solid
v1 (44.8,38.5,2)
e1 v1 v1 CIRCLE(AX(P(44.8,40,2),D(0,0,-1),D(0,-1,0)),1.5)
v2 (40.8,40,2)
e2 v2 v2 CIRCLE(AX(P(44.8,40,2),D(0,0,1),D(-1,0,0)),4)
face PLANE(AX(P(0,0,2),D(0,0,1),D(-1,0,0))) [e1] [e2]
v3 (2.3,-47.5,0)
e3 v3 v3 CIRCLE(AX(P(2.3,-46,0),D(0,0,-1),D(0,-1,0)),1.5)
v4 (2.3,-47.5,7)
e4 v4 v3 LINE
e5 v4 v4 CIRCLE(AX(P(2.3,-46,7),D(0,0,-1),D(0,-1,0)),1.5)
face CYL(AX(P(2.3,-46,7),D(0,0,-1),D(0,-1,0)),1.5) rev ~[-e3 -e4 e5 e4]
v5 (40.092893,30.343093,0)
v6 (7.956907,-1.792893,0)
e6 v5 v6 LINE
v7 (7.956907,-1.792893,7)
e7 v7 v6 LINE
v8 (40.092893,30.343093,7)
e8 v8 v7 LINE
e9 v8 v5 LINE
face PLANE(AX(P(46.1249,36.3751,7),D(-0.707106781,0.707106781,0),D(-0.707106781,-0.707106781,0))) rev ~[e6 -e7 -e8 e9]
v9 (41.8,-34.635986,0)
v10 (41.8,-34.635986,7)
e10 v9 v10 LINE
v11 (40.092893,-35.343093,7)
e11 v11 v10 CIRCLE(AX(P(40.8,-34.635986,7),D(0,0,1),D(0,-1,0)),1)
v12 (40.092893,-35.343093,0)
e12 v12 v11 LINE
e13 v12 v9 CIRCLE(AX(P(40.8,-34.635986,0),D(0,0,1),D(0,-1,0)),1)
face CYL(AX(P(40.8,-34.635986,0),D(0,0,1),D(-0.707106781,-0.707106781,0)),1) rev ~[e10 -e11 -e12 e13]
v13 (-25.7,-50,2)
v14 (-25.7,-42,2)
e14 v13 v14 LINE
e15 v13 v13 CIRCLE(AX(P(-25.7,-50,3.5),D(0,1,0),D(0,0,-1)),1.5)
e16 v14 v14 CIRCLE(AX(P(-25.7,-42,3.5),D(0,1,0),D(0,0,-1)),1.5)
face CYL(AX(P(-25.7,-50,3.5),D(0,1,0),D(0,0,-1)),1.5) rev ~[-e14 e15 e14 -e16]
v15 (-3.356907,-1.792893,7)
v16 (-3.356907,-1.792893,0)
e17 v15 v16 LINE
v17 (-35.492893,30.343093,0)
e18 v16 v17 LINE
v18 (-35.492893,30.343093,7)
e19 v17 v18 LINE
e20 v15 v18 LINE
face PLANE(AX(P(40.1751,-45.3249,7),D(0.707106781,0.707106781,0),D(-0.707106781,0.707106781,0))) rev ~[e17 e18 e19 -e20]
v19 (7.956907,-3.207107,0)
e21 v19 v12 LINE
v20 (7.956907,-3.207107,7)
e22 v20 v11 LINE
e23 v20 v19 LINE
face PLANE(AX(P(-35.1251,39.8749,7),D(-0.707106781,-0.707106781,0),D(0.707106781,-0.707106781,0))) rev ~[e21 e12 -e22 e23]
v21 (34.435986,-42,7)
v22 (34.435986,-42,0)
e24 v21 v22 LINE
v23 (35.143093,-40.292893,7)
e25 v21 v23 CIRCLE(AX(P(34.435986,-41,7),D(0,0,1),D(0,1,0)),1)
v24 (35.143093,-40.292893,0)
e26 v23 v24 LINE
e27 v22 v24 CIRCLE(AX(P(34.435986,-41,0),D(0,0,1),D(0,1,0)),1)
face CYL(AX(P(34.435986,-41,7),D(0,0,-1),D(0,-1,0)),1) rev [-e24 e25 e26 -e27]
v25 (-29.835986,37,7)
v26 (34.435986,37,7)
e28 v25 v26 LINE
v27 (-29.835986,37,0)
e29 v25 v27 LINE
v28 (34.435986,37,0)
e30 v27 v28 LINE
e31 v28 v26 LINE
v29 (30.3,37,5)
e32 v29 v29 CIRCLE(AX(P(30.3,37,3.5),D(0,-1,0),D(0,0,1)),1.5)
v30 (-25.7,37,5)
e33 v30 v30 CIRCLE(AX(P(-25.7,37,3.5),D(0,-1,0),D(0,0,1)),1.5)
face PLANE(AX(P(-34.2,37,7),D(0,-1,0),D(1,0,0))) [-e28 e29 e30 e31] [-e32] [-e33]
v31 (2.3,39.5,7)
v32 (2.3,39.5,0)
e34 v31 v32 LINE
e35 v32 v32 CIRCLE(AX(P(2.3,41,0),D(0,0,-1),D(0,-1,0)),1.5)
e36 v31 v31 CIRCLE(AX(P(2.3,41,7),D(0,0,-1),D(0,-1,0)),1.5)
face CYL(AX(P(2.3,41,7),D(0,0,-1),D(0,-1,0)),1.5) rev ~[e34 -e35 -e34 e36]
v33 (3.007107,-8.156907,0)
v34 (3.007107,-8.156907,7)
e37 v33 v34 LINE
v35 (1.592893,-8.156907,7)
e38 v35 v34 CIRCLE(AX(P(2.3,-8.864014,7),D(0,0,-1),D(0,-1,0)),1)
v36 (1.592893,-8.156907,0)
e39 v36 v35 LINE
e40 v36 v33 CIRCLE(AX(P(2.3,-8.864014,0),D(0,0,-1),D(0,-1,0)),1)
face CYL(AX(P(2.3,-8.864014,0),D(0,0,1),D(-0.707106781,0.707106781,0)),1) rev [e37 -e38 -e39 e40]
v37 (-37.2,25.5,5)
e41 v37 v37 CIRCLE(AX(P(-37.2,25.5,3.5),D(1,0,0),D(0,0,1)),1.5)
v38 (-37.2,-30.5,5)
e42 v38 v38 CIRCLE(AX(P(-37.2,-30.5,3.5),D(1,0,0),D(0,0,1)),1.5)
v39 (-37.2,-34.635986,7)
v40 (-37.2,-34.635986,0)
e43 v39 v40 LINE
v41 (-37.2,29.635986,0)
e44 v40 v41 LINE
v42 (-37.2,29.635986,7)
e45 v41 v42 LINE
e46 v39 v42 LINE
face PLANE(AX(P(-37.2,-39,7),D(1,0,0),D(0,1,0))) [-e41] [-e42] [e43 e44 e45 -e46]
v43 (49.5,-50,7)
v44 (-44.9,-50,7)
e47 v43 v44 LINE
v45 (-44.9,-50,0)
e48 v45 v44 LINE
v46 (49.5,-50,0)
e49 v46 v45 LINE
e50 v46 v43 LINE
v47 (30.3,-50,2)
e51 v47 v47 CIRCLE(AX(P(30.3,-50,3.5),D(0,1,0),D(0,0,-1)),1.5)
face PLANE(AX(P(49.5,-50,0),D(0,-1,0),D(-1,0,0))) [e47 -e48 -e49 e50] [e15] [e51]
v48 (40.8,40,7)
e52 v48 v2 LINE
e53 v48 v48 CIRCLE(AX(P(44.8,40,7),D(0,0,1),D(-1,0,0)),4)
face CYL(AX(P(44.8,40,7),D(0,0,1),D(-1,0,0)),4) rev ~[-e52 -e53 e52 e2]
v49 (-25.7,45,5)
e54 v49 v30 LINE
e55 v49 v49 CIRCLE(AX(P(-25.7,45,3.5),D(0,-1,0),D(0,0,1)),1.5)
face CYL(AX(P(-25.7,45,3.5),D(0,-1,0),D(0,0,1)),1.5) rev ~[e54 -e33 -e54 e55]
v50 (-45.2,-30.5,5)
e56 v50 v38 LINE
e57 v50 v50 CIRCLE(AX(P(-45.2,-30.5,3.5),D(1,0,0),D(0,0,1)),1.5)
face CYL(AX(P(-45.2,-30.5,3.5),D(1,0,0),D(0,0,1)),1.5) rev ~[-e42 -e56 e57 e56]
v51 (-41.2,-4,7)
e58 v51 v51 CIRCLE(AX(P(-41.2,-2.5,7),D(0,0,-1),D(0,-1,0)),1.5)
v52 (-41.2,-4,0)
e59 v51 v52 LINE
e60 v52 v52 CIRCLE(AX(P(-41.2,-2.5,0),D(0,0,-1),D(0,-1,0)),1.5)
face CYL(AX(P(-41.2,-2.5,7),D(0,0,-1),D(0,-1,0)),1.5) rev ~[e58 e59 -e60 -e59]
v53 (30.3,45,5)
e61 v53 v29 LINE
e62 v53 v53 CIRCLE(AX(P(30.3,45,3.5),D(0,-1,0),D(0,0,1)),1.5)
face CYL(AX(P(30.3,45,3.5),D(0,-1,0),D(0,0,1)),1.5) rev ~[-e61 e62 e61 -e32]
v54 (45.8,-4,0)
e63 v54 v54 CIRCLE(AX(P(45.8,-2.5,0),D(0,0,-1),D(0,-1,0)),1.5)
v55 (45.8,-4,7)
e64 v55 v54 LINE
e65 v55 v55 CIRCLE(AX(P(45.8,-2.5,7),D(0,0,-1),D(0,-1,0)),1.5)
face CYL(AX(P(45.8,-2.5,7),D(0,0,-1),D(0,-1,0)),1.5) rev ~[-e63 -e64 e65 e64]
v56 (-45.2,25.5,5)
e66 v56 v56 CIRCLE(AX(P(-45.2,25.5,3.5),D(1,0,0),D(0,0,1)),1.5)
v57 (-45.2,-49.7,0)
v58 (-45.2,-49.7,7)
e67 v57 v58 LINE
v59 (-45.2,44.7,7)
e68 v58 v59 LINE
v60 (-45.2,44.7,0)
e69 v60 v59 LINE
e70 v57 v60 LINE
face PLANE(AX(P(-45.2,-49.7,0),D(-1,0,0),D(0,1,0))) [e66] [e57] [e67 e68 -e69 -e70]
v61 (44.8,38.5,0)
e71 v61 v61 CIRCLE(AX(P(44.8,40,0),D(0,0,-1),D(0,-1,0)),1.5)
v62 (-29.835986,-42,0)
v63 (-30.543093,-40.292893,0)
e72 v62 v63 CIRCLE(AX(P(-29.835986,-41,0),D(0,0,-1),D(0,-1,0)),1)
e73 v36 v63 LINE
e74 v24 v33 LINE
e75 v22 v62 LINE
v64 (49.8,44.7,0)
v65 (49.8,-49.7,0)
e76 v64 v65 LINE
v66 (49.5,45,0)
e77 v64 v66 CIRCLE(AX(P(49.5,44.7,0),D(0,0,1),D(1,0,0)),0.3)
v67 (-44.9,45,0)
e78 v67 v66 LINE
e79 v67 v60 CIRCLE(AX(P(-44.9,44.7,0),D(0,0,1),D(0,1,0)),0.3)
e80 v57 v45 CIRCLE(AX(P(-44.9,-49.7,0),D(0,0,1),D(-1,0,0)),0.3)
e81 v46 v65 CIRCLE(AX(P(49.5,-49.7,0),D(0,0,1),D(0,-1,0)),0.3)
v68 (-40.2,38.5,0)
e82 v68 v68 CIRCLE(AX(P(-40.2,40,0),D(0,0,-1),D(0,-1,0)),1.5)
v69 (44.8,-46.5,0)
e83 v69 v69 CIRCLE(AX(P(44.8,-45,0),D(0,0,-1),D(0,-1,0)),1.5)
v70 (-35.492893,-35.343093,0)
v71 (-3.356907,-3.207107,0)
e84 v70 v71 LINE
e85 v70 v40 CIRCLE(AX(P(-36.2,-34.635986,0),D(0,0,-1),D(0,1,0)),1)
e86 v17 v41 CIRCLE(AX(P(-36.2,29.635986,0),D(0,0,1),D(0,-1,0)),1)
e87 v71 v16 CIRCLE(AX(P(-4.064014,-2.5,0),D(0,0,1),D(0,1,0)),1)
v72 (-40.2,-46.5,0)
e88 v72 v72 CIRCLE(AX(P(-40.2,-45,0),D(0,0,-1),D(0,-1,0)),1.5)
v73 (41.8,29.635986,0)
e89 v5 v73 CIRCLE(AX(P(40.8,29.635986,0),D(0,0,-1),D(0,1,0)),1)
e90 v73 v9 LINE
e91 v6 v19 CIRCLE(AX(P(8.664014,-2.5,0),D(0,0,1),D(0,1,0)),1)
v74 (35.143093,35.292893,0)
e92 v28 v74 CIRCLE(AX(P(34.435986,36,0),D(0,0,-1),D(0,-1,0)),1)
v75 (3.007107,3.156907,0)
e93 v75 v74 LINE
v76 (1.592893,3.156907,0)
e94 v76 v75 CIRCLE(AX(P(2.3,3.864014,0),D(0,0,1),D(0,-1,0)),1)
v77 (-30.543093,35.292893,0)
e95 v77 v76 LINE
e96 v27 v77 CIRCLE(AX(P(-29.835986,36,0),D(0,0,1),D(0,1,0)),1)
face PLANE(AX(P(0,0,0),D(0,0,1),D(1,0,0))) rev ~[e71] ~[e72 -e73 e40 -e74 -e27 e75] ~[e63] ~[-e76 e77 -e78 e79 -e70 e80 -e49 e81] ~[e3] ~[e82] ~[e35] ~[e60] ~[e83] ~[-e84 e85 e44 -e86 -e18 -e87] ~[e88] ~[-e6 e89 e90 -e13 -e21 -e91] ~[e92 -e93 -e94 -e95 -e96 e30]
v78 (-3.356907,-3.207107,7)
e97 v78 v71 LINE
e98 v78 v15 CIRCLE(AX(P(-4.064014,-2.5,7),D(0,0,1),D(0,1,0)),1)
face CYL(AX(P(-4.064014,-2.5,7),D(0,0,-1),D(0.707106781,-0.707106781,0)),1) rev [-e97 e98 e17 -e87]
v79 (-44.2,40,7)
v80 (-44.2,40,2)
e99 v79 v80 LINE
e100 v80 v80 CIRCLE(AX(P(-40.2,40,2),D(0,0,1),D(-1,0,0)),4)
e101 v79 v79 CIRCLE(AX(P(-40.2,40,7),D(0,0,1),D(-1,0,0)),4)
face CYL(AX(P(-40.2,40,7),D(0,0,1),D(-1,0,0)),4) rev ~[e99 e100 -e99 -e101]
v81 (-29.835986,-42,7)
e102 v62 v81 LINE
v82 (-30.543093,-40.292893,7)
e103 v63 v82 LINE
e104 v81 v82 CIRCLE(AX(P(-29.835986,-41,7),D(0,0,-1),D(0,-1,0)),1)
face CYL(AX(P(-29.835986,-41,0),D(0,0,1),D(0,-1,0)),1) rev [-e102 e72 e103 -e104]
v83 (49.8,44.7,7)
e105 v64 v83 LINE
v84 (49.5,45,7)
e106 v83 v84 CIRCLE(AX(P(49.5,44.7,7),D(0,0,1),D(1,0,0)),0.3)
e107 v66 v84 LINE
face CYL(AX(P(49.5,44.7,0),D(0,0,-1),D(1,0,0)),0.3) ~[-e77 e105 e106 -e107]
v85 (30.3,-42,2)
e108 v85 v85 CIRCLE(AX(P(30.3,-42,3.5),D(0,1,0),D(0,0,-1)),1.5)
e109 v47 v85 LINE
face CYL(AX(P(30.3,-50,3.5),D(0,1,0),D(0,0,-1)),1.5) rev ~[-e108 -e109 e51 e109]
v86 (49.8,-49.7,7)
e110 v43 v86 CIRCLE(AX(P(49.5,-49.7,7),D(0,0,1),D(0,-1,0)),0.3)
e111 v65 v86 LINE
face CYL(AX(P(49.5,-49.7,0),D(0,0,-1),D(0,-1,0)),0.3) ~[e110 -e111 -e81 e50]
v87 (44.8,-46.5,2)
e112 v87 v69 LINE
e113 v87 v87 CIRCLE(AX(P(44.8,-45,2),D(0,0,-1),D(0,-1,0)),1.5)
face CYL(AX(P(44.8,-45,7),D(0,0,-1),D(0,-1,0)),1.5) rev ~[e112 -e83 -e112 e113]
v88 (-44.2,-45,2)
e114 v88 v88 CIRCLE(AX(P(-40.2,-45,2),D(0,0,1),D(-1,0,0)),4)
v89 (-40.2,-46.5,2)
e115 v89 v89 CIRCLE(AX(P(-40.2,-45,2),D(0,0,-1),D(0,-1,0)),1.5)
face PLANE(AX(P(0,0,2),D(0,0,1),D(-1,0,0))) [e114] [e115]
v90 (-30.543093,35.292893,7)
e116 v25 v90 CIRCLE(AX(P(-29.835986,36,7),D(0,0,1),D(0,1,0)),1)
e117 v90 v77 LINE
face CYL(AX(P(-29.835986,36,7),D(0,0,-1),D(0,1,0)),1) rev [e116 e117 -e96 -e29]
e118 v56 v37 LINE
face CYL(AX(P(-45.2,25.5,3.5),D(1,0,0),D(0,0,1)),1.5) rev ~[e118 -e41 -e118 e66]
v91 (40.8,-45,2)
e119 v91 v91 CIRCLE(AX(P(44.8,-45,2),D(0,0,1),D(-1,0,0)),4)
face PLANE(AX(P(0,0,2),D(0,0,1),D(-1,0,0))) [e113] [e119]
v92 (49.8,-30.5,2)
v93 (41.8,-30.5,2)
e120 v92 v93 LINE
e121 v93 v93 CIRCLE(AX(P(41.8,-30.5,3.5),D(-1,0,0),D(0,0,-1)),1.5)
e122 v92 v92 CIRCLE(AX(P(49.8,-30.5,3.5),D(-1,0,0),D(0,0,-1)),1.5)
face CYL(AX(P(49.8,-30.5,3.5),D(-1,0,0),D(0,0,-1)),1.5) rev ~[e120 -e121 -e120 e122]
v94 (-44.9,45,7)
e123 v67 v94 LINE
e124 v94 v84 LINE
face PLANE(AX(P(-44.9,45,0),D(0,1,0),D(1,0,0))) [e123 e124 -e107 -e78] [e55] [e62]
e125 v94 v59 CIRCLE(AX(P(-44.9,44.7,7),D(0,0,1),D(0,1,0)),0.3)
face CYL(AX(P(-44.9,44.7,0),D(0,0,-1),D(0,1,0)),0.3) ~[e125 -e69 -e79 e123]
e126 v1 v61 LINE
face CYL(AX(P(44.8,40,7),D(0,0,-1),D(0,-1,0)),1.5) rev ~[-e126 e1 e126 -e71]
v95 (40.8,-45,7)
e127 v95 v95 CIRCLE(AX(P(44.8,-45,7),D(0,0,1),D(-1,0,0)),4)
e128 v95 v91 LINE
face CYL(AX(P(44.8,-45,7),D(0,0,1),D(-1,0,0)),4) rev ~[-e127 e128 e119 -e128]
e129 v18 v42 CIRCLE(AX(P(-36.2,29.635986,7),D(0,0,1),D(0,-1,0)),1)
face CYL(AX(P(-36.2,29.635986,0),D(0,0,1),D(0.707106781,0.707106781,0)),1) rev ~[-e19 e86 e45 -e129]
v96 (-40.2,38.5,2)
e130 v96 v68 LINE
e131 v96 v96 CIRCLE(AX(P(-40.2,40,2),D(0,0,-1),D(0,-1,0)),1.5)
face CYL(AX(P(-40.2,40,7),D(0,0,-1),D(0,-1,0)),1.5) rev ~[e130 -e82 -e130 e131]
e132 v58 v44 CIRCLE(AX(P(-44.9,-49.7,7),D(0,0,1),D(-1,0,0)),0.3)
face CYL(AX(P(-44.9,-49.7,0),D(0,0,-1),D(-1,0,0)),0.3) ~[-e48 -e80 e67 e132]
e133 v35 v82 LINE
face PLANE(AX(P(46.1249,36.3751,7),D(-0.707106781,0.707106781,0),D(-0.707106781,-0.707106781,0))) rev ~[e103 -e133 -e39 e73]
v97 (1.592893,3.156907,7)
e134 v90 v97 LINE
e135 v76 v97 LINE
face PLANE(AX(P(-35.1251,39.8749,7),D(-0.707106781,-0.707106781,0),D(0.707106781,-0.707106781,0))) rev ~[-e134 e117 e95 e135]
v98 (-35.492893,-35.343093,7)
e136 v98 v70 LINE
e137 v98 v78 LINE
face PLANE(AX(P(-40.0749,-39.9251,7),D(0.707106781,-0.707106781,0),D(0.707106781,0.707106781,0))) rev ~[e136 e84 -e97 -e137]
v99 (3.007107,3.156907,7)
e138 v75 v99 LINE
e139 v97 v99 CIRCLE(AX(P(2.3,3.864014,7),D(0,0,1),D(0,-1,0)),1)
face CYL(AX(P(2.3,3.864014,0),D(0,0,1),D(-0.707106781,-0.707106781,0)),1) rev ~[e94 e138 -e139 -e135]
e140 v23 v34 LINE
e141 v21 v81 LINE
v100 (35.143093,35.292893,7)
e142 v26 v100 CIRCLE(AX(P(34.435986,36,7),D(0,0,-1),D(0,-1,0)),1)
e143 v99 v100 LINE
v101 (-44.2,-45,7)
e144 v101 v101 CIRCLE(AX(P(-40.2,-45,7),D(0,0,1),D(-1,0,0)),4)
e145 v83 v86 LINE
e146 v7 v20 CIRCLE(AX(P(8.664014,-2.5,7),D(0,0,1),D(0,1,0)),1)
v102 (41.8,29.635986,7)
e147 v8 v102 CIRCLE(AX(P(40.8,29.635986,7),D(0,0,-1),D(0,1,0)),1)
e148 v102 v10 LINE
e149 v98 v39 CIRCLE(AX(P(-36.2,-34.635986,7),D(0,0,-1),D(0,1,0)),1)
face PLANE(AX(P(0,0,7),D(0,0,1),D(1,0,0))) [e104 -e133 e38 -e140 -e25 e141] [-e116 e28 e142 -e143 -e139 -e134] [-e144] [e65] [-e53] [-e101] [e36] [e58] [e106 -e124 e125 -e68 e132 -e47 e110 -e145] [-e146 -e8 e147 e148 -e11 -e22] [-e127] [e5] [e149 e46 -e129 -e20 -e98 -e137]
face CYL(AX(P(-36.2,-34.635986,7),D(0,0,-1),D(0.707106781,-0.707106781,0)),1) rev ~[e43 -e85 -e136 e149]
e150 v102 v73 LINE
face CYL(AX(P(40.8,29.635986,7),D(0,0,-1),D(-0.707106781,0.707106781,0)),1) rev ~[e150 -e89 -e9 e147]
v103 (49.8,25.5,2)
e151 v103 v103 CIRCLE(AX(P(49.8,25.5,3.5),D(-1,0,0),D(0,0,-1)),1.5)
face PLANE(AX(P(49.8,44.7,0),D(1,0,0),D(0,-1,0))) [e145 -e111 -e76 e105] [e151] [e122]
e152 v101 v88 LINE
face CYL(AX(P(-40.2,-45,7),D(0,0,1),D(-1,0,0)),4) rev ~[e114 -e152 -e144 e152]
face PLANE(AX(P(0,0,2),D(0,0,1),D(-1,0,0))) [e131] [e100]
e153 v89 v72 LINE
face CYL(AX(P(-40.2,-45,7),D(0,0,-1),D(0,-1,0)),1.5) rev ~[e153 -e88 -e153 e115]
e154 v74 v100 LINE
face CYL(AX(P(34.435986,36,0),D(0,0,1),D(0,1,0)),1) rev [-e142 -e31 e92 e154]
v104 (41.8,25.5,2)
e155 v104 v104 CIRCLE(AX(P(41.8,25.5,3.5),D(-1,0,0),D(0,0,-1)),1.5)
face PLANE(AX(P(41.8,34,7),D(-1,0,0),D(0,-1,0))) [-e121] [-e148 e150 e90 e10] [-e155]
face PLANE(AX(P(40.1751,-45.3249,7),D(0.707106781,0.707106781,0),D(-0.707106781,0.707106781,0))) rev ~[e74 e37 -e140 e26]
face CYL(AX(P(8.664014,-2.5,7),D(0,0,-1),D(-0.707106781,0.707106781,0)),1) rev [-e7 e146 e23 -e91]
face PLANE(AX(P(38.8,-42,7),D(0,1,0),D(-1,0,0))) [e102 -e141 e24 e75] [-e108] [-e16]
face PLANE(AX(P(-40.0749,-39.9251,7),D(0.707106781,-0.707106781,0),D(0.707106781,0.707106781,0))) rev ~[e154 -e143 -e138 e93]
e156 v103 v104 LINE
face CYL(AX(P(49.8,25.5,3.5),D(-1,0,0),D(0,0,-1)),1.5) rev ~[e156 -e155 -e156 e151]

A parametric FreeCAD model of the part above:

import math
import FreeCAD as App
import Part
import Sketcher

V = App.Vector
Q = App.Units.Quantity


def edges_at(feature, points):
    """Names of the edges that pass closest to the given points."""
    edges = feature.Shape.Edges
    near = lambda p: min(range(len(edges)), key=lambda i: edges[i].distToShape(Part.Vertex(*p))[0])
    return sorted({f"Edge{near(p) + 1}" for p in points})


def add_polygon(sketch, points):
    """Adds a closed chain of lines whose ends are joined by coincident constraints."""
    first, n = sketch.GeometryCount, len(points)
    for a, b in zip(points, points[1:] + points[:1]):
        sketch.addGeometry(Part.LineSegment(App.Vector(*a, 0), App.Vector(*b, 0)), False)
    for i in range(n):
        sketch.addConstraint(Sketcher.Constraint("Coincident", first + i, 2, first + (i + 1) % n, 1))

doc = App.newDocument("Part")
body = doc.addObject("PartDesign::Body", "Body")

sketch1 = body.newObject("Sketcher::SketchObject", "Sketch")
sketch1.AttachmentSupport = (doc.getObject("XY_Plane"), [""])
sketch1.MapMode = "FlatFace"
sketch1.addGeometry(Part.LineSegment(V(49.5, 45, 0), V(-44.9, 45, 0)), False)
sketch1.addGeometry(Part.ArcOfCircle(Part.Circle(V(-44.9, 44.7, 0), V(0, 0, 1), 0.3), math.radians(90), math.radians(180)), False)
sketch1.addGeometry(Part.LineSegment(V(-45.2, 44.7, 0), V(-45.2, -49.7, 0)), False)
sketch1.addGeometry(Part.ArcOfCircle(Part.Circle(V(-44.9, -49.7, 0), V(0, 0, 1), 0.3), math.radians(180), math.radians(270)), False)
sketch1.addGeometry(Part.LineSegment(V(-44.9, -50, 0), V(49.5, -50, 0)), False)
sketch1.addGeometry(Part.ArcOfCircle(Part.Circle(V(49.5, -49.7, 0), V(0, 0, 1), 0.3), math.radians(-90), math.radians(0)), False)
sketch1.addGeometry(Part.LineSegment(V(49.8, -49.7, 0), V(49.8, 44.7, 0)), False)
sketch1.addGeometry(Part.ArcOfCircle(Part.Circle(V(49.5, 44.7, 0), V(0, 0, 1), 0.3), math.radians(0), math.radians(90)), False)
sketch1.addConstraint(Sketcher.Constraint("Tangent", 0, 2, 1, 1))
sketch1.addConstraint(Sketcher.Constraint("Tangent", 1, 2, 2, 1))
sketch1.addConstraint(Sketcher.Constraint("Tangent", 2, 2, 3, 1))
sketch1.addConstraint(Sketcher.Constraint("Tangent", 3, 2, 4, 1))
sketch1.addConstraint(Sketcher.Constraint("Tangent", 4, 2, 5, 1))
sketch1.addConstraint(Sketcher.Constraint("Tangent", 5, 2, 6, 1))
sketch1.addConstraint(Sketcher.Constraint("Tangent", 6, 2, 7, 1))
sketch1.addConstraint(Sketcher.Constraint("Tangent", 7, 2, 0, 1))
sketch1.addConstraint(Sketcher.Constraint("Horizontal", 0))
sketch1.addConstraint(Sketcher.Constraint("Vertical", 2))
sketch1.addConstraint(Sketcher.Constraint("Horizontal", 4))
sketch1.addConstraint(Sketcher.Constraint("Vertical", 6))
sketch1.addConstraint(Sketcher.Constraint("Equal", 1, 3))
sketch1.addConstraint(Sketcher.Constraint("Equal", 3, 5))
sketch1.addConstraint(Sketcher.Constraint("Equal", 5, 7))
sketch1.addConstraint(Sketcher.Constraint("Equal", 4, 2))
sketch1.addConstraint(Sketcher.Constraint("Radius", 1, Q("0.3 mm")))
sketch1.addConstraint(Sketcher.Constraint("DistanceX", 0, 2, 0, 1, Q("94.4 mm")))
sketch1.addConstraint(Sketcher.Constraint("DistanceY", -1, 1, 0, 2, Q("45 mm")))
sketch1.addConstraint(Sketcher.Constraint("DistanceX", 1, 3, -1, 1, Q("44.9 mm")))
pad1 = body.newObject("PartDesign::Pad", "Pad")
pad1.Profile = sketch1
pad1.Length = 7

sketch2 = body.newObject("Sketcher::SketchObject", "Sketch001")
sketch2.AttachmentSupport = (doc.getObject("XY_Plane"), [""])
sketch2.MapMode = "FlatFace"
sketch2.AttachmentOffset = App.Placement(V(0, 0, 7), App.Rotation())
sketch2.addGeometry(Part.LineSegment(V(-34.2, -42, 0), V(38.8, -42, 0)), False)
sketch2.addGeometry(Part.ArcOfCircle(Part.Circle(V(38.8, -39, 0), V(0, 0, 1), 3), math.radians(-90), math.radians(0)), False)
sketch2.addGeometry(Part.LineSegment(V(41.8, -39, 0), V(41.8, 34, 0)), False)
sketch2.addGeometry(Part.ArcOfCircle(Part.Circle(V(38.8, 34, 0), V(0, 0, 1), 3), math.radians(0), math.radians(90)), False)
sketch2.addGeometry(Part.LineSegment(V(38.8, 37, 0), V(-34.2, 37, 0)), False)
sketch2.addGeometry(Part.ArcOfCircle(Part.Circle(V(-34.2, 34, 0), V(0, 0, 1), 3), math.radians(90), math.radians(180)), False)
sketch2.addGeometry(Part.LineSegment(V(-37.2, 34, 0), V(-37.2, -39, 0)), False)
sketch2.addGeometry(Part.ArcOfCircle(Part.Circle(V(-34.2, -39, 0), V(0, 0, 1), 3), math.radians(180), math.radians(270)), False)
sketch2.addConstraint(Sketcher.Constraint("Tangent", 0, 2, 1, 1))
sketch2.addConstraint(Sketcher.Constraint("Tangent", 1, 2, 2, 1))
sketch2.addConstraint(Sketcher.Constraint("Tangent", 2, 2, 3, 1))
sketch2.addConstraint(Sketcher.Constraint("Tangent", 3, 2, 4, 1))
sketch2.addConstraint(Sketcher.Constraint("Tangent", 4, 2, 5, 1))
sketch2.addConstraint(Sketcher.Constraint("Tangent", 5, 2, 6, 1))
sketch2.addConstraint(Sketcher.Constraint("Tangent", 6, 2, 7, 1))
sketch2.addConstraint(Sketcher.Constraint("Tangent", 7, 2, 0, 1))
sketch2.addConstraint(Sketcher.Constraint("Horizontal", 0))
sketch2.addConstraint(Sketcher.Constraint("Vertical", 2))
sketch2.addConstraint(Sketcher.Constraint("Horizontal", 4))
sketch2.addConstraint(Sketcher.Constraint("Vertical", 6))
sketch2.addConstraint(Sketcher.Constraint("Equal", 1, 3))
sketch2.addConstraint(Sketcher.Constraint("Equal", 3, 5))
sketch2.addConstraint(Sketcher.Constraint("Equal", 5, 7))
sketch2.addConstraint(Sketcher.Constraint("Equal", 4, 2))
sketch2.addConstraint(Sketcher.Constraint("Radius", 1, Q("3 mm")))
sketch2.addConstraint(Sketcher.Constraint("DistanceX", 0, 1, 0, 2, Q("73 mm")))
sketch2.addConstraint(Sketcher.Constraint("DistanceY", 1, 3, -1, 1, Q("39 mm")))
sketch2.addConstraint(Sketcher.Constraint("DistanceX", -1, 1, 1, 3, Q("38.8 mm")))
pocket1 = body.newObject("PartDesign::Pocket", "Pocket")
pocket1.Profile = sketch2
pocket1.Length = 10

sketch3 = body.newObject("Sketcher::SketchObject", "Sketch002")
sketch3.AttachmentSupport = (doc.getObject("XY_Plane"), [""])
sketch3.MapMode = "FlatFace"
sketch3.AttachmentOffset = App.Placement(V(0, 0, 7), App.Rotation())
add_polygon(sketch3, [(-40, 35), (40, -45), (45, -40), (-35, 40)])
sketch3.addConstraint(Sketcher.Constraint("Perpendicular", 0, 1))
sketch3.addConstraint(Sketcher.Constraint("Perpendicular", 1, 2))
sketch3.addConstraint(Sketcher.Constraint("Perpendicular", 2, 3))
sketch3.addConstraint(Sketcher.Constraint("Angle", 0, Q("-45 deg")))
sketch3.addConstraint(Sketcher.Constraint("Distance", 1, Q("7 mm")))
sketch3.addConstraint(Sketcher.Constraint("DistanceX", 2, 2, 1, 2, Q("80.25 mm")))
sketch3.addConstraint(Sketcher.Constraint("DistanceX", -1, 1, 0, 2, Q("40.175 mm")))
sketch3.addConstraint(Sketcher.Constraint("DistanceY", 0, 2, -1, 1, Q("45.325 mm")))
pad2 = body.newObject("PartDesign::Pad", "Pad001")
pad2.Profile = sketch3
pad2.Length = 7
pad2.Reversed = True

sketch4 = body.newObject("Sketcher::SketchObject", "Sketch003")
sketch4.AttachmentSupport = (doc.getObject("XY_Plane"), [""])
sketch4.MapMode = "FlatFace"
sketch4.AttachmentOffset = App.Placement(V(0, 0, 7), App.Rotation())
add_polygon(sketch4, [(-35, -45), (46, 36), (41, 41), (-40, -40)])
sketch4.addConstraint(Sketcher.Constraint("Perpendicular", 0, 1))
sketch4.addConstraint(Sketcher.Constraint("Perpendicular", 1, 2))
sketch4.addConstraint(Sketcher.Constraint("Perpendicular", 2, 3))
sketch4.addConstraint(Sketcher.Constraint("Angle", 0, Q("45 deg")))
sketch4.addConstraint(Sketcher.Constraint("Distance", 1, Q("7 mm")))
sketch4.addConstraint(Sketcher.Constraint("DistanceX", 2, 2, 1, 2, Q("81.25 mm")))
sketch4.addConstraint(Sketcher.Constraint("DistanceX", -1, 1, 0, 2, Q("46.125 mm")))
sketch4.addConstraint(Sketcher.Constraint("DistanceY", -1, 1, 0, 2, Q("36.375 mm")))
pad3 = body.newObject("PartDesign::Pad", "Pad002")
pad3.Profile = sketch4
pad3.Length = 7
pad3.Reversed = True
doc.recompute()

fillet = body.newObject("PartDesign::Fillet", "Fillet")
fillet.Base = (pad3, edges_at(pad3, [(36.85, -42, 3.5)]))
fillet.Radius = 1
doc.recompute()

fillet2 = body.newObject("PartDesign::Fillet", "Fillet001")
fillet2.Base = (fillet, edges_at(fillet, [(41.8, -37.05, 3.5)]))
fillet2.Radius = 1
doc.recompute()

fillet3 = body.newObject("PartDesign::Fillet", "Fillet002")
fillet3.Base = (fillet2, edges_at(fillet2, [(41.8, 32.05, 3.5)]))
fillet3.Radius = 1
doc.recompute()

fillet4 = body.newObject("PartDesign::Fillet", "Fillet003")
fillet4.Base = (fillet3, edges_at(fillet3, [(36.85, 37, 3.5)]))
fillet4.Radius = 1
doc.recompute()

fillet5 = body.newObject("PartDesign::Fillet", "Fillet004")
fillet5.Base = (fillet4, edges_at(fillet4, [(-32.25, 37, 3.5)]))
fillet5.Radius = 1
doc.recompute()

fillet6 = body.newObject("PartDesign::Fillet", "Fillet005")
fillet6.Base = (fillet5, edges_at(fillet5, [(-37.2, 32.05, 3.5)]))
fillet6.Radius = 1
doc.recompute()

fillet7 = body.newObject("PartDesign::Fillet", "Fillet006")
fillet7.Base = (fillet6, edges_at(fillet6, [(-37.2, -37.05, 3.5)]))
fillet7.Radius = 1
doc.recompute()

fillet8 = body.newObject("PartDesign::Fillet", "Fillet007")
fillet8.Base = (fillet7, edges_at(fillet7, [(-32.25, -42, 3.5)]))
fillet8.Radius = 1
doc.recompute()

fillet9 = body.newObject("PartDesign::Fillet", "Fillet008")
fillet9.Base = (fillet8, edges_at(fillet8, [(-2.65, -2.5, 3.5)]))
fillet9.Radius = 1
doc.recompute()

fillet10 = body.newObject("PartDesign::Fillet", "Fillet009")
fillet10.Base = (fillet9, edges_at(fillet9, [(2.3, -7.45, 3.5)]))
fillet10.Radius = 1
doc.recompute()

fillet11 = body.newObject("PartDesign::Fillet", "Fillet010")
fillet11.Base = (fillet10, edges_at(fillet10, [(7.25, -2.5, 3.5)]))
fillet11.Radius = 1
doc.recompute()

fillet12 = body.newObject("PartDesign::Fillet", "Fillet011")
fillet12.Base = (fillet11, edges_at(fillet11, [(2.3, 2.45, 3.5)]))
fillet12.Radius = 1

sketch5 = body.newObject("Sketcher::SketchObject", "Sketch004")
sketch5.AttachmentSupport = (doc.getObject("XY_Plane"), [""])
sketch5.MapMode = "FlatFace"
sketch5.AttachmentOffset = App.Placement(V(0, 0, 7), App.Rotation())
sketch5.addGeometry(Part.Circle(V(44.8, 40, 0), V(0, 0, 1), 1.5), False)
sketch5.addGeometry(Part.Circle(V(-40.2, 40, 0), V(0, 0, 1), 1.5), False)
sketch5.addGeometry(Part.Circle(V(-40.2, -45, 0), V(0, 0, 1), 1.5), False)
sketch5.addGeometry(Part.Circle(V(44.8, -45, 0), V(0, 0, 1), 1.5), False)
sketch5.addConstraint(Sketcher.Constraint("Equal", 0, 1))
sketch5.addConstraint(Sketcher.Constraint("Equal", 1, 2))
sketch5.addConstraint(Sketcher.Constraint("Equal", 2, 3))
sketch5.addConstraint(Sketcher.Constraint("Horizontal", 0, 3, 1, 3))
sketch5.addConstraint(Sketcher.Constraint("Horizontal", 2, 3, 3, 3))
sketch5.addConstraint(Sketcher.Constraint("Vertical", 1, 3, 2, 3))
sketch5.addConstraint(Sketcher.Constraint("Vertical", 0, 3, 3, 3))
sketch5.addConstraint(Sketcher.Constraint("Diameter", 0, Q("3 mm")))
sketch5.addConstraint(Sketcher.Constraint("DistanceY", -1, 1, 0, 3, Q("40 mm")))
sketch5.addConstraint(Sketcher.Constraint("DistanceY", 2, 3, -1, 1, Q("45 mm")))
sketch5.addConstraint(Sketcher.Constraint("DistanceX", 1, 3, 0, 3, Q("85 mm")))
sketch5.addConstraint(Sketcher.Constraint("DistanceX", -1, 1, 0, 3, Q("44.8 mm")))
doc.recompute()
hole = body.newObject("PartDesign::Hole", "Hole")
hole.Profile = sketch5
hole.ThreadType = "None"
hole.Diameter = 3
hole.DepthType = "Dimension"
hole.Depth = 15
hole.DrillPoint = "Angled"
hole.DrillPointAngle = 118

sketch6 = body.newObject("Sketcher::SketchObject", "Sketch005")
sketch6.AttachmentSupport = (doc.getObject("XY_Plane"), [""])
sketch6.MapMode = "FlatFace"
sketch6.AttachmentOffset = App.Placement(V(0, 0, 7), App.Rotation())
sketch6.addGeometry(Part.Circle(V(-40.2, 40, 0), V(0, 0, 1), 4), False)
sketch6.addGeometry(Part.Circle(V(44.8, 40, 0), V(0, 0, 1), 4), False)
sketch6.addGeometry(Part.Circle(V(44.8, -45, 0), V(0, 0, 1), 4), False)
sketch6.addGeometry(Part.Circle(V(-40.2, -45, 0), V(0, 0, 1), 4), False)
sketch6.addConstraint(Sketcher.Constraint("Equal", 0, 1))
sketch6.addConstraint(Sketcher.Constraint("Equal", 1, 2))
sketch6.addConstraint(Sketcher.Constraint("Equal", 2, 3))
sketch6.addConstraint(Sketcher.Constraint("Horizontal", 0, 3, 1, 3))
sketch6.addConstraint(Sketcher.Constraint("Horizontal", 2, 3, 3, 3))
sketch6.addConstraint(Sketcher.Constraint("Vertical", 1, 3, 2, 3))
sketch6.addConstraint(Sketcher.Constraint("Vertical", 0, 3, 3, 3))
sketch6.addConstraint(Sketcher.Constraint("Diameter", 0, Q("8 mm")))
sketch6.addConstraint(Sketcher.Constraint("DistanceY", -1, 1, 0, 3, Q("40 mm")))
sketch6.addConstraint(Sketcher.Constraint("DistanceY", 2, 3, -1, 1, Q("45 mm")))
sketch6.addConstraint(Sketcher.Constraint("DistanceX", 0, 3, 1, 3, Q("85 mm")))
sketch6.addConstraint(Sketcher.Constraint("DistanceX", 0, 3, -1, 1, Q("40.2 mm")))
pocket2 = body.newObject("PartDesign::Pocket", "Pocket001")
pocket2.Profile = sketch6
pocket2.Length = 5

sketch7 = body.newObject("Sketcher::SketchObject", "Sketch006")
sketch7.AttachmentSupport = (doc.getObject("XY_Plane"), [""])
sketch7.MapMode = "FlatFace"
sketch7.AttachmentOffset = App.Placement(V(0, 0, 7), App.Rotation())
sketch7.addGeometry(Part.Circle(V(2.3, -46, 0), V(0, 0, 1), 1.5), False)
sketch7.addGeometry(Part.Circle(V(-41.2, -2.5, 0), V(0, 0, 1), 1.5), False)
sketch7.addGeometry(Part.Circle(V(45.8, -2.5, 0), V(0, 0, 1), 1.5), False)
sketch7.addGeometry(Part.Circle(V(2.3, 41, 0), V(0, 0, 1), 1.5), False)
sketch7.addConstraint(Sketcher.Constraint("Equal", 0, 1))
sketch7.addConstraint(Sketcher.Constraint("Equal", 1, 2))
sketch7.addConstraint(Sketcher.Constraint("Equal", 2, 3))
sketch7.addConstraint(Sketcher.Constraint("Horizontal", 1, 3, 2, 3))
sketch7.addConstraint(Sketcher.Constraint("Vertical", 0, 3, 3, 3))
sketch7.addConstraint(Sketcher.Constraint("Diameter", 0, Q("3 mm")))
sketch7.addConstraint(Sketcher.Constraint("DistanceY", 0, 3, -1, 1, Q("46 mm")))
sketch7.addConstraint(Sketcher.Constraint("DistanceY", -1, 1, 3, 3, Q("41 mm")))
sketch7.addConstraint(Sketcher.Constraint("DistanceX", 1, 3, 2, 3, Q("87 mm")))
sketch7.addConstraint(Sketcher.Constraint("DistanceX", -1, 1, 0, 3, Q("2.3 mm")))
sketch7.addConstraint(Sketcher.Constraint("DistanceX", 1, 3, -1, 1, Q("41.2 mm")))
sketch7.addConstraint(Sketcher.Constraint("DistanceY", 1, 3, -1, 1, Q("2.5 mm")))
doc.recompute()
hole2 = body.newObject("PartDesign::Hole", "Hole001")
hole2.Profile = sketch7
hole2.ThreadType = "None"
hole2.Diameter = 3
hole2.DepthType = "Dimension"
hole2.Depth = 15
hole2.DrillPoint = "Angled"
hole2.DrillPointAngle = 118

sketch8 = body.newObject("Sketcher::SketchObject", "Sketch007")
sketch8.AttachmentSupport = (doc.getObject("XZ_Plane"), [""])
sketch8.MapMode = "FlatFace"
sketch8.AttachmentOffset = App.Placement(V(0, 0, 50), App.Rotation())
sketch8.addGeometry(Part.Circle(V(-25.7, 3.5, 0), V(0, 0, 1), 1.5), False)
sketch8.addGeometry(Part.Circle(V(30.3, 3.5, 0), V(0, 0, 1), 1.5), False)
sketch8.addConstraint(Sketcher.Constraint("Equal", 0, 1))
sketch8.addConstraint(Sketcher.Constraint("Horizontal", 0, 3, 1, 3))
sketch8.addConstraint(Sketcher.Constraint("Diameter", 0, Q("3 mm")))
sketch8.addConstraint(Sketcher.Constraint("DistanceX", 0, 3, 1, 3, Q("56 mm")))
sketch8.addConstraint(Sketcher.Constraint("DistanceX", 0, 3, -1, 1, Q("25.7 mm")))
sketch8.addConstraint(Sketcher.Constraint("DistanceY", -1, 1, 0, 3, Q("3.5 mm")))
doc.recompute()
hole3 = body.newObject("PartDesign::Hole", "Hole002")
hole3.Profile = sketch8
hole3.ThreadType = "None"
hole3.Diameter = 3
hole3.DepthType = "Dimension"
hole3.Depth = 11
hole3.DrillPoint = "Angled"
hole3.DrillPointAngle = 118

sketch9 = body.newObject("Sketcher::SketchObject", "Sketch008")
sketch9.AttachmentSupport = (doc.getObject("YZ_Plane"), [""])
sketch9.MapMode = "FlatFace"
sketch9.AttachmentOffset = App.Placement(V(0, 0, 49.8), App.Rotation())
sketch9.addGeometry(Part.Circle(V(-30.5, 3.5, 0), V(0, 0, 1), 1.5), False)
sketch9.addGeometry(Part.Circle(V(25.5, 3.5, 0), V(0, 0, 1), 1.5), False)
sketch9.addConstraint(Sketcher.Constraint("Equal", 0, 1))
sketch9.addConstraint(Sketcher.Constraint("Horizontal", 0, 3, 1, 3))
sketch9.addConstraint(Sketcher.Constraint("Diameter", 0, Q("3 mm")))
sketch9.addConstraint(Sketcher.Constraint("DistanceX", 0, 3, 1, 3, Q("56 mm")))
sketch9.addConstraint(Sketcher.Constraint("DistanceX", 0, 3, -1, 1, Q("30.5 mm")))
sketch9.addConstraint(Sketcher.Constraint("DistanceY", -1, 1, 0, 3, Q("3.5 mm")))
doc.recompute()
hole4 = body.newObject("PartDesign::Hole", "Hole003")
hole4.Profile = sketch9
hole4.ThreadType = "None"
hole4.Diameter = 3
hole4.DepthType = "Dimension"
hole4.Depth = 11
hole4.DrillPoint = "Angled"
hole4.DrillPointAngle = 118

sketch10 = body.newObject("Sketcher::SketchObject", "Sketch009")
sketch10.AttachmentSupport = (doc.getObject("XZ_Plane"), [""])
sketch10.MapMode = "FlatFace"
sketch10.AttachmentOffset = App.Placement(V(0, 0, -45), App.Rotation())
sketch10.addGeometry(Part.Circle(V(30.3, 3.5, 0), V(0, 0, 1), 1.5), False)
sketch10.addGeometry(Part.Circle(V(-25.7, 3.5, 0), V(0, 0, 1), 1.5), False)
sketch10.addConstraint(Sketcher.Constraint("Equal", 0, 1))
sketch10.addConstraint(Sketcher.Constraint("Horizontal", 0, 3, 1, 3))
sketch10.addConstraint(Sketcher.Constraint("Diameter", 0, Q("3 mm")))
sketch10.addConstraint(Sketcher.Constraint("DistanceX", 1, 3, 0, 3, Q("56 mm")))
sketch10.addConstraint(Sketcher.Constraint("DistanceX", -1, 1, 0, 3, Q("30.3 mm")))
sketch10.addConstraint(Sketcher.Constraint("DistanceY", -1, 1, 0, 3, Q("3.5 mm")))
doc.recompute()
hole5 = body.newObject("PartDesign::Hole", "Hole004")
hole5.Profile = sketch10
hole5.ThreadType = "None"
hole5.Diameter = 3
hole5.DepthType = "Dimension"
hole5.Depth = 11
hole5.DrillPoint = "Angled"
hole5.DrillPointAngle = 118
hole5.Reversed = True

sketch11 = body.newObject("Sketcher::SketchObject", "Sketch010")
sketch11.AttachmentSupport = (doc.getObject("YZ_Plane"), [""])
sketch11.MapMode = "FlatFace"
sketch11.AttachmentOffset = App.Placement(V(0, 0, -45.2), App.Rotation())
sketch11.addGeometry(Part.Circle(V(25.5, 3.5, 0), V(0, 0, 1), 1.5), False)
sketch11.addGeometry(Part.Circle(V(-30.5, 3.5, 0), V(0, 0, 1), 1.5), False)
sketch11.addConstraint(Sketcher.Constraint("Equal", 0, 1))
sketch11.addConstraint(Sketcher.Constraint("Horizontal", 0, 3, 1, 3))
sketch11.addConstraint(Sketcher.Constraint("Diameter", 0, Q("3 mm")))
sketch11.addConstraint(Sketcher.Constraint("DistanceX", 1, 3, 0, 3, Q("56 mm")))
sketch11.addConstraint(Sketcher.Constraint("DistanceX", -1, 1, 0, 3, Q("25.5 mm")))
sketch11.addConstraint(Sketcher.Constraint("DistanceY", -1, 1, 0, 3, Q("3.5 mm")))
doc.recompute()
hole6 = body.newObject("PartDesign::Hole", "Hole005")
hole6.Profile = sketch11
hole6.ThreadType = "None"
hole6.Diameter = 3
hole6.DepthType = "Dimension"
hole6.Depth = 11
hole6.DrillPoint = "Angled"
hole6.DrillPointAngle = 118
hole6.Reversed = True

doc.recompute()
